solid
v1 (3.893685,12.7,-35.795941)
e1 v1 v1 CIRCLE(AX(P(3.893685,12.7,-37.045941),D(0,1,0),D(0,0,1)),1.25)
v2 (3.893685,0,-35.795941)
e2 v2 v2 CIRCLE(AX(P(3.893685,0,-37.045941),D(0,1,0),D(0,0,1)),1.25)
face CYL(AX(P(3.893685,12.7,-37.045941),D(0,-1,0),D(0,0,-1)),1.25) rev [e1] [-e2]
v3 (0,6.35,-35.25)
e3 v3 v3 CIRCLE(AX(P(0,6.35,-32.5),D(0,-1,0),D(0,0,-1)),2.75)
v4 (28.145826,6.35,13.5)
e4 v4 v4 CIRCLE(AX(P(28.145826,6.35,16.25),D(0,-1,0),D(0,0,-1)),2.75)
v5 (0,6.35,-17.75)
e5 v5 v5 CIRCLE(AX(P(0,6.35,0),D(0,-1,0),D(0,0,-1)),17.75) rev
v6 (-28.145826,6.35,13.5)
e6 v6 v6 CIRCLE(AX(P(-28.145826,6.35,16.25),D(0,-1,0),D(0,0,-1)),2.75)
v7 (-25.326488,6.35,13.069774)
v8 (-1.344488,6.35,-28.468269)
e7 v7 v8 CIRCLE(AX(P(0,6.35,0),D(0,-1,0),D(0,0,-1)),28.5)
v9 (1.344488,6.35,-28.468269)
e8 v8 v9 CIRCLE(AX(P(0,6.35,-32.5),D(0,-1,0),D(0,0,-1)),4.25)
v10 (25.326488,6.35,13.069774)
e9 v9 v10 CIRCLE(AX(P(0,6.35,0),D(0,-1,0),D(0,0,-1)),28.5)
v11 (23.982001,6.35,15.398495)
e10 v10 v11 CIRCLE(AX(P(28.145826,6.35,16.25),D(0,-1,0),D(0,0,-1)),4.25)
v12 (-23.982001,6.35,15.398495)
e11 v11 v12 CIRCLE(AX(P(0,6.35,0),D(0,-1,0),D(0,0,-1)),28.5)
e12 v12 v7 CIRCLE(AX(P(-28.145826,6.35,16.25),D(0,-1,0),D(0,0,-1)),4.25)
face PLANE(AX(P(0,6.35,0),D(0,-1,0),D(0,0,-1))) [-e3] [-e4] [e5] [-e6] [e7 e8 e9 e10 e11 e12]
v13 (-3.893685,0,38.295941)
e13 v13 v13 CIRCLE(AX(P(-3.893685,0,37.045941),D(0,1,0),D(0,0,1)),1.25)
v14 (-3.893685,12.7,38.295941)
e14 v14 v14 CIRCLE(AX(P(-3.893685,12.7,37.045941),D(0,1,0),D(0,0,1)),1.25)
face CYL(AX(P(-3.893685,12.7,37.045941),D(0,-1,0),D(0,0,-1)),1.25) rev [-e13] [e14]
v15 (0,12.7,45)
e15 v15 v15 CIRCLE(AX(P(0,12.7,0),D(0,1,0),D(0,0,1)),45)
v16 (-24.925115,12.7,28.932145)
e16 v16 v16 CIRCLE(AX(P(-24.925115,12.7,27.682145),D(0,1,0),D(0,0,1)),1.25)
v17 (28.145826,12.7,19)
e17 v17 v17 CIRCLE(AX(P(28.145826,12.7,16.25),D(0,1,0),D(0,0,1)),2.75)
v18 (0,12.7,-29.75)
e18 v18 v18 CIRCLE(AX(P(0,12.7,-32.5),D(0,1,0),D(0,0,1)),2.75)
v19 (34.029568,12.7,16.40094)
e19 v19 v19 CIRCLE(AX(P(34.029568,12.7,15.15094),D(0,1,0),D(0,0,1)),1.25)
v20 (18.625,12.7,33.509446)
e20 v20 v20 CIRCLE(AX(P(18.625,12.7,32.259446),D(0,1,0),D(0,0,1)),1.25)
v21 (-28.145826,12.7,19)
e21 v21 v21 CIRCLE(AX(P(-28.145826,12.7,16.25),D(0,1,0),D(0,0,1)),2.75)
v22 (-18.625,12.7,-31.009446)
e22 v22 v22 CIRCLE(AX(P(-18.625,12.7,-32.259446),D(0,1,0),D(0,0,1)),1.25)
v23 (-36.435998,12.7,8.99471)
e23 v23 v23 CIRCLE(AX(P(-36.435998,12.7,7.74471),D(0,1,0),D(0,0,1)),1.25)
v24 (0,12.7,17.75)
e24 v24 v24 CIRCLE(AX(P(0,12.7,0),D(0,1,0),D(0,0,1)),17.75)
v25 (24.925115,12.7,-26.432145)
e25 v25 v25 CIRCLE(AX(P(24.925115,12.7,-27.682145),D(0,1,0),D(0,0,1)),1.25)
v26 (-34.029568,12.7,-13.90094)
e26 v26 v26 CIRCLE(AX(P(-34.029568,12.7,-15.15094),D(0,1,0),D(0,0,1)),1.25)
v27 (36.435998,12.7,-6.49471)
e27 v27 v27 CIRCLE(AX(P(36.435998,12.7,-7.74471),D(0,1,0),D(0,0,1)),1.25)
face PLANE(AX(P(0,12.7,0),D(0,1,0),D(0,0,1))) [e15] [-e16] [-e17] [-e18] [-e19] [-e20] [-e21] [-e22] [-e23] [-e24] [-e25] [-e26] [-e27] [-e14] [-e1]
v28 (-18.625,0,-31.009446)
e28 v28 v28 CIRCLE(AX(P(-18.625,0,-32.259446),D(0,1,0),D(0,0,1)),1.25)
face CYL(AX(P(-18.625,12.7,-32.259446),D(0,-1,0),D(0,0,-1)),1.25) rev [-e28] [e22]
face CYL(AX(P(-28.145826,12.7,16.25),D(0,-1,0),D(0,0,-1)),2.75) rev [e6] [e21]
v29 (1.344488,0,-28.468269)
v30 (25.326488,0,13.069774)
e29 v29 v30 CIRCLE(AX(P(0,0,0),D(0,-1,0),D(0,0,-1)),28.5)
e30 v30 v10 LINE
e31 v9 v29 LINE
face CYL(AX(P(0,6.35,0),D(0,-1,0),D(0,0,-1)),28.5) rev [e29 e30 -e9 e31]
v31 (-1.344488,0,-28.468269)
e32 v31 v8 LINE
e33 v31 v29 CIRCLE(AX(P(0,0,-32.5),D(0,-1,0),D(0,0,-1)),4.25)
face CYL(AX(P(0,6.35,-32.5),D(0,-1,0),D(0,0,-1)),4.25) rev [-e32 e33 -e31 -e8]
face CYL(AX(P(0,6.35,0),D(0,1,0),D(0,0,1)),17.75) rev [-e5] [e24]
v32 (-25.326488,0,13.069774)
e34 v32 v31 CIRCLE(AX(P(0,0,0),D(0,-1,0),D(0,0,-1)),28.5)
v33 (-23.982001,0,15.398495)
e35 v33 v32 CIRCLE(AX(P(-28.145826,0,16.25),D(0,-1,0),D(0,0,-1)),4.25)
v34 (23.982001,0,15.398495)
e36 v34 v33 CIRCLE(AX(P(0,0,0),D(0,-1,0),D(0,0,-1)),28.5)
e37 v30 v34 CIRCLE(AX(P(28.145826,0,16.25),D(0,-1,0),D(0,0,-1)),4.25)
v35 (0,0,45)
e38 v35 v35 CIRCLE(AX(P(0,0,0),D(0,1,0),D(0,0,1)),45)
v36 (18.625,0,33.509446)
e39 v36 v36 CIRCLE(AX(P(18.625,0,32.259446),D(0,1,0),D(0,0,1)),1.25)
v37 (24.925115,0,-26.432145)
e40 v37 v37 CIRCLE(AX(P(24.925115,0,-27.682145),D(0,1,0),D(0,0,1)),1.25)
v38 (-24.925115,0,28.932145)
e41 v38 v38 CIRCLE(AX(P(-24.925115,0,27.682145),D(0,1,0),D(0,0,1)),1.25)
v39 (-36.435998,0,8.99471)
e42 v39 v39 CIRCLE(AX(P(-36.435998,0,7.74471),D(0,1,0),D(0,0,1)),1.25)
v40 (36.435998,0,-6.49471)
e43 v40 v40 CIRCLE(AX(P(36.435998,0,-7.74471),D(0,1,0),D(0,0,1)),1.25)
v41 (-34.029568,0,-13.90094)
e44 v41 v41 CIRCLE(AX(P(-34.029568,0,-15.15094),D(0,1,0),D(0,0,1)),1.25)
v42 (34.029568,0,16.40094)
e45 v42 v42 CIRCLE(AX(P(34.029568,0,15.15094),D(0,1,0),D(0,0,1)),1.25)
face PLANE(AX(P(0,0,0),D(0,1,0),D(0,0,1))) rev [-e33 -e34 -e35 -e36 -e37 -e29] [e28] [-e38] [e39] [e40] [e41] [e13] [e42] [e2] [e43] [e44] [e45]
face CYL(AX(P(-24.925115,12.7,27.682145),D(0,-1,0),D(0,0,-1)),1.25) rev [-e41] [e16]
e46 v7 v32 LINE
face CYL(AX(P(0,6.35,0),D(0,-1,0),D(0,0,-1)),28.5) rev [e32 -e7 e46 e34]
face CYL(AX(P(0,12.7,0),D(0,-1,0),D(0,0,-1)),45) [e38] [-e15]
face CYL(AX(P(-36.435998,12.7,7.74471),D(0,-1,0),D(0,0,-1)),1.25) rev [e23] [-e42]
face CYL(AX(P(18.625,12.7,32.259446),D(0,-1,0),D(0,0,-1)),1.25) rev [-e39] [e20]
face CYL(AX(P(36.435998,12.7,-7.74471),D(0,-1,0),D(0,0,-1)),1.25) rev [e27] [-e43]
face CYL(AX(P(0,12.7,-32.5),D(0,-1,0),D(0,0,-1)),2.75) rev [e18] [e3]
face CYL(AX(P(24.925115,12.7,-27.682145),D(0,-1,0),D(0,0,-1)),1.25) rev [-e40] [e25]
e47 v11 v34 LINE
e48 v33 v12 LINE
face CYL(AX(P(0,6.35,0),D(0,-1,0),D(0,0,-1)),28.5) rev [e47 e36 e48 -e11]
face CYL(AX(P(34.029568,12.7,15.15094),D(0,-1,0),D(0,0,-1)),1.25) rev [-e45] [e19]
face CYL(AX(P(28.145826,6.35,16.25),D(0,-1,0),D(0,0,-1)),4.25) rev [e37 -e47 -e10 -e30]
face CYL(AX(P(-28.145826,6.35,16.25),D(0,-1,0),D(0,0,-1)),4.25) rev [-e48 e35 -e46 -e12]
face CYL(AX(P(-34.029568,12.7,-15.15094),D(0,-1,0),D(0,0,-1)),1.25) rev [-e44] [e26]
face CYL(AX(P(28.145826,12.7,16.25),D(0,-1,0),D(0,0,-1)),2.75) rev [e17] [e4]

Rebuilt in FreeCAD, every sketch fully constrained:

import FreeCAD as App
import Part
import Sketcher
from FreeCAD import Vector

doc = App.newDocument("Part")
params = doc.addObject("Spreadsheet::Sheet", "Params")
for row, (alias, value) in enumerate([
    ("sketch1_diameter", "90 mm"),
    ("sketch1_diameter2", "2.5 mm"),
    ("sketch1_diameter3", "5.5 mm"),
    ("pad1_length", "12.7 mm"),
    ("sketch2_diameter", "35.5 mm"),
    ("pocket1_length", "6.35 mm"),
    ("sketch3_diameter", "12 mm"),
    ("sketch4_diameter", "57 mm"),
    ("pocket3_length", "6.35 mm"),
    ("sketch5_diameter", "8.5 mm"),
    ("pocket4_length", "6.35 mm"),
], start=1):
    params.set(f"A{row}", alias)
    params.set(f"B{row}", "=" + value)
    params.setAlias(f"B{row}", alias)

body = doc.addObject("PartDesign::Body", "Body")

sketch1 = body.newObject("Sketcher::SketchObject", "Sketch")
sketch1.AttachmentSupport = (doc.getObject("XZ_Plane"), [""])
sketch1.MapMode = "FlatFace"
sketch1.addGeometry(Part.Circle(Vector(0, 0, 0), Vector(0, 0, 1), 45), False)
sketch1.addGeometry(Part.Circle(Vector(-34, -15.2, 0), Vector(0, 0, 1), 1.2), False)
sketch1.addGeometry(Part.Circle(Vector(-18.6, -32.3, 0), Vector(0, 0, 1), 1.2), False)
sketch1.addGeometry(Part.Circle(Vector(0, -32.5, 0), Vector(0, 0, 1), 2.8), False)
sketch1.addGeometry(Part.Circle(Vector(-36.4, 7.7, 0), Vector(0, 0, 1), 1.2), False)
sketch1.addGeometry(Part.Circle(Vector(-28.1, 16.2, 0), Vector(0, 0, 1), 2.8), False)
sketch1.addGeometry(Part.Circle(Vector(-24.9, 27.7, 0), Vector(0, 0, 1), 1.2), False)
sketch1.addGeometry(Part.Circle(Vector(-3.9, 37, 0), Vector(0, 0, 1), 1.2), False)
sketch1.addGeometry(Part.Circle(Vector(3.9, -37, 0), Vector(0, 0, 1), 1.2), False)
sketch1.addGeometry(Part.Circle(Vector(24.9, -27.7, 0), Vector(0, 0, 1), 1.2), False)
sketch1.addGeometry(Part.Circle(Vector(36.4, -7.7, 0), Vector(0, 0, 1), 1.2), False)
sketch1.addGeometry(Part.Circle(Vector(18.6, 32.3, 0), Vector(0, 0, 1), 1.2), False)
sketch1.addGeometry(Part.Circle(Vector(28.1, 16.2, 0), Vector(0, 0, 1), 2.8), False)
sketch1.addGeometry(Part.Circle(Vector(34, 15.2, 0), Vector(0, 0, 1), 1.2), False)
sketch1.addConstraint(Sketcher.Constraint("Coincident", 0, 3, -1, 1))
sketch1.addConstraint(Sketcher.Constraint("Equal", 1, 2))
sketch1.addConstraint(Sketcher.Constraint("Equal", 2, 4))
sketch1.addConstraint(Sketcher.Constraint("Equal", 3, 5))
sketch1.addConstraint(Sketcher.Constraint("Equal", 4, 6))
sketch1.addConstraint(Sketcher.Constraint("Equal", 6, 7))
sketch1.addConstraint(Sketcher.Constraint("Equal", 7, 8))
sketch1.addConstraint(Sketcher.Constraint("Equal", 8, 9))
sketch1.addConstraint(Sketcher.Constraint("Equal", 9, 10))
sketch1.addConstraint(Sketcher.Constraint("Equal", 10, 11))
sketch1.addConstraint(Sketcher.Constraint("Equal", 5, 12))
sketch1.addConstraint(Sketcher.Constraint("Equal", 11, 13))
sketch1.addConstraint(Sketcher.Constraint("Symmetric", 7, 3, 8, 3, -1, 1))
sketch1.addConstraint(Sketcher.Constraint("Symmetric", 6, 3, 9, 3, -1, 1))
sketch1.addConstraint(Sketcher.Constraint("Symmetric", 4, 3, 10, 3, -1, 1))
sketch1.addConstraint(Sketcher.Constraint("Symmetric", 2, 3, 11, 3, -1, 1))
sketch1.addConstraint(Sketcher.Constraint("Symmetric", 1, 3, 13, 3, -1, 1))
sketch1.addConstraint(Sketcher.Constraint("Symmetric", 5, 3, 12, 3, -2))
sketch1.addConstraint(Sketcher.Constraint("PointOnObject", 3, 3, -2))
sketch1.addConstraint(Sketcher.Constraint("Diameter", 0, 90.0))
sketch1.addConstraint(Sketcher.Constraint("Diameter", 1, 2.5))
sketch1.addConstraint(Sketcher.Constraint("Diameter", 3, 5.5))
sketch1.addConstraint(Sketcher.Constraint("DistanceY", 3, 3, -1, 1, 32.5))
sketch1.addConstraint(Sketcher.Constraint("DistanceY", -1, 1, 5, 3, 16.25))
sketch1.addConstraint(Sketcher.Constraint("DistanceX", 2, 3, -1, 1, 18.625))
sketch1.addConstraint(Sketcher.Constraint("DistanceX", 4, 3, -1, 1, 36.435998))
sketch1.addConstraint(Sketcher.Constraint("DistanceY", 8, 3, 1, 3, 21.895001))
sketch1.addConstraint(Sketcher.Constraint("DistanceY", 2, 3, 9, 3, 4.577302))
sketch1.addConstraint(Sketcher.Constraint("DistanceX", 1, 3, -1, 1, 34.029568))
sketch1.addConstraint(Sketcher.Constraint("DistanceY", 1, 3, -1, 1, 15.15094))
sketch1.addConstraint(Sketcher.Constraint("DistanceY", -1, 1, 4, 3, 7.74471))
sketch1.addConstraint(Sketcher.Constraint("DistanceX", 5, 3, 6, 3, 3.220711))
sketch1.addConstraint(Sketcher.Constraint("DistanceY", 2, 3, 6, 3, 59.941591))
sketch1.addConstraint(Sketcher.Constraint("DistanceX", 6, 3, 7, 3, 21.03143))
sketch1.addConstraint(Sketcher.Constraint("DistanceX", 7, 3, 12, 3, 32.039511))
sketch1.setExpression("Constraints[19]", "Params.sketch1_diameter")
sketch1.setExpression("Constraints[20]", "Params.sketch1_diameter2")
sketch1.setExpression("Constraints[21]", "Params.sketch1_diameter3")
pad1 = body.newObject("PartDesign::Pad", "Pad")
pad1.Profile = sketch1
pad1.setExpression("Length", "Params.pad1_length")
pad1.Reversed = True

sketch2 = body.newObject("Sketcher::SketchObject", "Sketch001")
sketch2.AttachmentSupport = (doc.getObject("XZ_Plane"), [""])
sketch2.MapMode = "FlatFace"
sketch2.AttachmentOffset = App.Placement(Vector(0, 0, -12.7), App.Rotation())
sketch2.addGeometry(Part.Circle(Vector(0, 0, 0), Vector(0, 0, 1), 18), False)
sketch2.addConstraint(Sketcher.Constraint("Coincident", 0, 3, -1, 1))
sketch2.addConstraint(Sketcher.Constraint("Diameter", 0, 35.5))
sketch2.setExpression("Constraints[1]", "Params.sketch2_diameter")
pocket1 = body.newObject("PartDesign::Pocket", "Pocket")
pocket1.Profile = sketch2
pocket1.setExpression("Length", "Params.pocket1_length")
pocket1.Reversed = True

sketch3 = body.newObject("Sketcher::SketchObject", "Sketch002")
sketch3.AttachmentSupport = (doc.getObject("XZ_Plane"), [""])
sketch3.MapMode = "FlatFace"
sketch3.AttachmentOffset = App.Placement(Vector(0, 0, -6.35), App.Rotation())
sketch3.addGeometry(Part.Circle(Vector(0, 0, 0), Vector(0, 0, 1), 6), False)
sketch3.addConstraint(Sketcher.Constraint("Coincident", 0, 3, -1, 1))
sketch3.addConstraint(Sketcher.Constraint("Diameter", 0, 12.0))
sketch3.setExpression("Constraints[1]", "Params.sketch3_diameter")
pocket2 = body.newObject("PartDesign::Pocket", "Pocket001")
pocket2.Profile = sketch3
pocket2.Type = "ThroughAll"
pocket2.Reversed = True

sketch4 = body.newObject("Sketcher::SketchObject", "Sketch003")
sketch4.AttachmentSupport = (doc.getObject("XZ_Plane"), [""])
sketch4.MapMode = "FlatFace"
sketch4.addGeometry(Part.Circle(Vector(0, 0, 0), Vector(0, 0, 1), 28), False)
sketch4.addConstraint(Sketcher.Constraint("Coincident", 0, 3, -1, 1))
sketch4.addConstraint(Sketcher.Constraint("Diameter", 0, 57.0))
sketch4.setExpression("Constraints[1]", "Params.sketch4_diameter")
pocket3 = body.newObject("PartDesign::Pocket", "Pocket002")
pocket3.Profile = sketch4
pocket3.setExpression("Length", "Params.pocket3_length")

sketch5 = body.newObject("Sketcher::SketchObject", "Sketch004")
sketch5.AttachmentSupport = (doc.getObject("XZ_Plane"), [""])
sketch5.MapMode = "FlatFace"
sketch5.addGeometry(Part.Circle(Vector(28.1, 16.2, 0), Vector(0, 0, 1), 4.2), False)
sketch5.addGeometry(Part.Circle(Vector(0, -32.5, 0), Vector(0, 0, 1), 4.2), False)
sketch5.addGeometry(Part.Circle(Vector(-28.1, 16.2, 0), Vector(0, 0, 1), 4.2), False)
sketch5.addConstraint(Sketcher.Constraint("Equal", 0, 1))
sketch5.addConstraint(Sketcher.Constraint("Equal", 1, 2))
sketch5.addConstraint(Sketcher.Constraint("Symmetric", 0, 3, 2, 3, -2))
sketch5.addConstraint(Sketcher.Constraint("PointOnObject", 1, 3, -2))
sketch5.addConstraint(Sketcher.Constraint("Diameter", 0, 8.5))
sketch5.addConstraint(Sketcher.Constraint("DistanceY", 1, 3, -1, 1, 32.5))
sketch5.addConstraint(Sketcher.Constraint("DistanceY", -1, 1, 0, 3, 16.25))
sketch5.addConstraint(Sketcher.Constraint("DistanceX", 2, 3, 0, 3, 56.291651))
sketch5.setExpression("Constraints[4]", "Params.sketch5_diameter")
pocket4 = body.newObject("PartDesign::Pocket", "Pocket003")
pocket4.Profile = sketch5
pocket4.setExpression("Length", "Params.pocket4_length")

doc.recompute()
